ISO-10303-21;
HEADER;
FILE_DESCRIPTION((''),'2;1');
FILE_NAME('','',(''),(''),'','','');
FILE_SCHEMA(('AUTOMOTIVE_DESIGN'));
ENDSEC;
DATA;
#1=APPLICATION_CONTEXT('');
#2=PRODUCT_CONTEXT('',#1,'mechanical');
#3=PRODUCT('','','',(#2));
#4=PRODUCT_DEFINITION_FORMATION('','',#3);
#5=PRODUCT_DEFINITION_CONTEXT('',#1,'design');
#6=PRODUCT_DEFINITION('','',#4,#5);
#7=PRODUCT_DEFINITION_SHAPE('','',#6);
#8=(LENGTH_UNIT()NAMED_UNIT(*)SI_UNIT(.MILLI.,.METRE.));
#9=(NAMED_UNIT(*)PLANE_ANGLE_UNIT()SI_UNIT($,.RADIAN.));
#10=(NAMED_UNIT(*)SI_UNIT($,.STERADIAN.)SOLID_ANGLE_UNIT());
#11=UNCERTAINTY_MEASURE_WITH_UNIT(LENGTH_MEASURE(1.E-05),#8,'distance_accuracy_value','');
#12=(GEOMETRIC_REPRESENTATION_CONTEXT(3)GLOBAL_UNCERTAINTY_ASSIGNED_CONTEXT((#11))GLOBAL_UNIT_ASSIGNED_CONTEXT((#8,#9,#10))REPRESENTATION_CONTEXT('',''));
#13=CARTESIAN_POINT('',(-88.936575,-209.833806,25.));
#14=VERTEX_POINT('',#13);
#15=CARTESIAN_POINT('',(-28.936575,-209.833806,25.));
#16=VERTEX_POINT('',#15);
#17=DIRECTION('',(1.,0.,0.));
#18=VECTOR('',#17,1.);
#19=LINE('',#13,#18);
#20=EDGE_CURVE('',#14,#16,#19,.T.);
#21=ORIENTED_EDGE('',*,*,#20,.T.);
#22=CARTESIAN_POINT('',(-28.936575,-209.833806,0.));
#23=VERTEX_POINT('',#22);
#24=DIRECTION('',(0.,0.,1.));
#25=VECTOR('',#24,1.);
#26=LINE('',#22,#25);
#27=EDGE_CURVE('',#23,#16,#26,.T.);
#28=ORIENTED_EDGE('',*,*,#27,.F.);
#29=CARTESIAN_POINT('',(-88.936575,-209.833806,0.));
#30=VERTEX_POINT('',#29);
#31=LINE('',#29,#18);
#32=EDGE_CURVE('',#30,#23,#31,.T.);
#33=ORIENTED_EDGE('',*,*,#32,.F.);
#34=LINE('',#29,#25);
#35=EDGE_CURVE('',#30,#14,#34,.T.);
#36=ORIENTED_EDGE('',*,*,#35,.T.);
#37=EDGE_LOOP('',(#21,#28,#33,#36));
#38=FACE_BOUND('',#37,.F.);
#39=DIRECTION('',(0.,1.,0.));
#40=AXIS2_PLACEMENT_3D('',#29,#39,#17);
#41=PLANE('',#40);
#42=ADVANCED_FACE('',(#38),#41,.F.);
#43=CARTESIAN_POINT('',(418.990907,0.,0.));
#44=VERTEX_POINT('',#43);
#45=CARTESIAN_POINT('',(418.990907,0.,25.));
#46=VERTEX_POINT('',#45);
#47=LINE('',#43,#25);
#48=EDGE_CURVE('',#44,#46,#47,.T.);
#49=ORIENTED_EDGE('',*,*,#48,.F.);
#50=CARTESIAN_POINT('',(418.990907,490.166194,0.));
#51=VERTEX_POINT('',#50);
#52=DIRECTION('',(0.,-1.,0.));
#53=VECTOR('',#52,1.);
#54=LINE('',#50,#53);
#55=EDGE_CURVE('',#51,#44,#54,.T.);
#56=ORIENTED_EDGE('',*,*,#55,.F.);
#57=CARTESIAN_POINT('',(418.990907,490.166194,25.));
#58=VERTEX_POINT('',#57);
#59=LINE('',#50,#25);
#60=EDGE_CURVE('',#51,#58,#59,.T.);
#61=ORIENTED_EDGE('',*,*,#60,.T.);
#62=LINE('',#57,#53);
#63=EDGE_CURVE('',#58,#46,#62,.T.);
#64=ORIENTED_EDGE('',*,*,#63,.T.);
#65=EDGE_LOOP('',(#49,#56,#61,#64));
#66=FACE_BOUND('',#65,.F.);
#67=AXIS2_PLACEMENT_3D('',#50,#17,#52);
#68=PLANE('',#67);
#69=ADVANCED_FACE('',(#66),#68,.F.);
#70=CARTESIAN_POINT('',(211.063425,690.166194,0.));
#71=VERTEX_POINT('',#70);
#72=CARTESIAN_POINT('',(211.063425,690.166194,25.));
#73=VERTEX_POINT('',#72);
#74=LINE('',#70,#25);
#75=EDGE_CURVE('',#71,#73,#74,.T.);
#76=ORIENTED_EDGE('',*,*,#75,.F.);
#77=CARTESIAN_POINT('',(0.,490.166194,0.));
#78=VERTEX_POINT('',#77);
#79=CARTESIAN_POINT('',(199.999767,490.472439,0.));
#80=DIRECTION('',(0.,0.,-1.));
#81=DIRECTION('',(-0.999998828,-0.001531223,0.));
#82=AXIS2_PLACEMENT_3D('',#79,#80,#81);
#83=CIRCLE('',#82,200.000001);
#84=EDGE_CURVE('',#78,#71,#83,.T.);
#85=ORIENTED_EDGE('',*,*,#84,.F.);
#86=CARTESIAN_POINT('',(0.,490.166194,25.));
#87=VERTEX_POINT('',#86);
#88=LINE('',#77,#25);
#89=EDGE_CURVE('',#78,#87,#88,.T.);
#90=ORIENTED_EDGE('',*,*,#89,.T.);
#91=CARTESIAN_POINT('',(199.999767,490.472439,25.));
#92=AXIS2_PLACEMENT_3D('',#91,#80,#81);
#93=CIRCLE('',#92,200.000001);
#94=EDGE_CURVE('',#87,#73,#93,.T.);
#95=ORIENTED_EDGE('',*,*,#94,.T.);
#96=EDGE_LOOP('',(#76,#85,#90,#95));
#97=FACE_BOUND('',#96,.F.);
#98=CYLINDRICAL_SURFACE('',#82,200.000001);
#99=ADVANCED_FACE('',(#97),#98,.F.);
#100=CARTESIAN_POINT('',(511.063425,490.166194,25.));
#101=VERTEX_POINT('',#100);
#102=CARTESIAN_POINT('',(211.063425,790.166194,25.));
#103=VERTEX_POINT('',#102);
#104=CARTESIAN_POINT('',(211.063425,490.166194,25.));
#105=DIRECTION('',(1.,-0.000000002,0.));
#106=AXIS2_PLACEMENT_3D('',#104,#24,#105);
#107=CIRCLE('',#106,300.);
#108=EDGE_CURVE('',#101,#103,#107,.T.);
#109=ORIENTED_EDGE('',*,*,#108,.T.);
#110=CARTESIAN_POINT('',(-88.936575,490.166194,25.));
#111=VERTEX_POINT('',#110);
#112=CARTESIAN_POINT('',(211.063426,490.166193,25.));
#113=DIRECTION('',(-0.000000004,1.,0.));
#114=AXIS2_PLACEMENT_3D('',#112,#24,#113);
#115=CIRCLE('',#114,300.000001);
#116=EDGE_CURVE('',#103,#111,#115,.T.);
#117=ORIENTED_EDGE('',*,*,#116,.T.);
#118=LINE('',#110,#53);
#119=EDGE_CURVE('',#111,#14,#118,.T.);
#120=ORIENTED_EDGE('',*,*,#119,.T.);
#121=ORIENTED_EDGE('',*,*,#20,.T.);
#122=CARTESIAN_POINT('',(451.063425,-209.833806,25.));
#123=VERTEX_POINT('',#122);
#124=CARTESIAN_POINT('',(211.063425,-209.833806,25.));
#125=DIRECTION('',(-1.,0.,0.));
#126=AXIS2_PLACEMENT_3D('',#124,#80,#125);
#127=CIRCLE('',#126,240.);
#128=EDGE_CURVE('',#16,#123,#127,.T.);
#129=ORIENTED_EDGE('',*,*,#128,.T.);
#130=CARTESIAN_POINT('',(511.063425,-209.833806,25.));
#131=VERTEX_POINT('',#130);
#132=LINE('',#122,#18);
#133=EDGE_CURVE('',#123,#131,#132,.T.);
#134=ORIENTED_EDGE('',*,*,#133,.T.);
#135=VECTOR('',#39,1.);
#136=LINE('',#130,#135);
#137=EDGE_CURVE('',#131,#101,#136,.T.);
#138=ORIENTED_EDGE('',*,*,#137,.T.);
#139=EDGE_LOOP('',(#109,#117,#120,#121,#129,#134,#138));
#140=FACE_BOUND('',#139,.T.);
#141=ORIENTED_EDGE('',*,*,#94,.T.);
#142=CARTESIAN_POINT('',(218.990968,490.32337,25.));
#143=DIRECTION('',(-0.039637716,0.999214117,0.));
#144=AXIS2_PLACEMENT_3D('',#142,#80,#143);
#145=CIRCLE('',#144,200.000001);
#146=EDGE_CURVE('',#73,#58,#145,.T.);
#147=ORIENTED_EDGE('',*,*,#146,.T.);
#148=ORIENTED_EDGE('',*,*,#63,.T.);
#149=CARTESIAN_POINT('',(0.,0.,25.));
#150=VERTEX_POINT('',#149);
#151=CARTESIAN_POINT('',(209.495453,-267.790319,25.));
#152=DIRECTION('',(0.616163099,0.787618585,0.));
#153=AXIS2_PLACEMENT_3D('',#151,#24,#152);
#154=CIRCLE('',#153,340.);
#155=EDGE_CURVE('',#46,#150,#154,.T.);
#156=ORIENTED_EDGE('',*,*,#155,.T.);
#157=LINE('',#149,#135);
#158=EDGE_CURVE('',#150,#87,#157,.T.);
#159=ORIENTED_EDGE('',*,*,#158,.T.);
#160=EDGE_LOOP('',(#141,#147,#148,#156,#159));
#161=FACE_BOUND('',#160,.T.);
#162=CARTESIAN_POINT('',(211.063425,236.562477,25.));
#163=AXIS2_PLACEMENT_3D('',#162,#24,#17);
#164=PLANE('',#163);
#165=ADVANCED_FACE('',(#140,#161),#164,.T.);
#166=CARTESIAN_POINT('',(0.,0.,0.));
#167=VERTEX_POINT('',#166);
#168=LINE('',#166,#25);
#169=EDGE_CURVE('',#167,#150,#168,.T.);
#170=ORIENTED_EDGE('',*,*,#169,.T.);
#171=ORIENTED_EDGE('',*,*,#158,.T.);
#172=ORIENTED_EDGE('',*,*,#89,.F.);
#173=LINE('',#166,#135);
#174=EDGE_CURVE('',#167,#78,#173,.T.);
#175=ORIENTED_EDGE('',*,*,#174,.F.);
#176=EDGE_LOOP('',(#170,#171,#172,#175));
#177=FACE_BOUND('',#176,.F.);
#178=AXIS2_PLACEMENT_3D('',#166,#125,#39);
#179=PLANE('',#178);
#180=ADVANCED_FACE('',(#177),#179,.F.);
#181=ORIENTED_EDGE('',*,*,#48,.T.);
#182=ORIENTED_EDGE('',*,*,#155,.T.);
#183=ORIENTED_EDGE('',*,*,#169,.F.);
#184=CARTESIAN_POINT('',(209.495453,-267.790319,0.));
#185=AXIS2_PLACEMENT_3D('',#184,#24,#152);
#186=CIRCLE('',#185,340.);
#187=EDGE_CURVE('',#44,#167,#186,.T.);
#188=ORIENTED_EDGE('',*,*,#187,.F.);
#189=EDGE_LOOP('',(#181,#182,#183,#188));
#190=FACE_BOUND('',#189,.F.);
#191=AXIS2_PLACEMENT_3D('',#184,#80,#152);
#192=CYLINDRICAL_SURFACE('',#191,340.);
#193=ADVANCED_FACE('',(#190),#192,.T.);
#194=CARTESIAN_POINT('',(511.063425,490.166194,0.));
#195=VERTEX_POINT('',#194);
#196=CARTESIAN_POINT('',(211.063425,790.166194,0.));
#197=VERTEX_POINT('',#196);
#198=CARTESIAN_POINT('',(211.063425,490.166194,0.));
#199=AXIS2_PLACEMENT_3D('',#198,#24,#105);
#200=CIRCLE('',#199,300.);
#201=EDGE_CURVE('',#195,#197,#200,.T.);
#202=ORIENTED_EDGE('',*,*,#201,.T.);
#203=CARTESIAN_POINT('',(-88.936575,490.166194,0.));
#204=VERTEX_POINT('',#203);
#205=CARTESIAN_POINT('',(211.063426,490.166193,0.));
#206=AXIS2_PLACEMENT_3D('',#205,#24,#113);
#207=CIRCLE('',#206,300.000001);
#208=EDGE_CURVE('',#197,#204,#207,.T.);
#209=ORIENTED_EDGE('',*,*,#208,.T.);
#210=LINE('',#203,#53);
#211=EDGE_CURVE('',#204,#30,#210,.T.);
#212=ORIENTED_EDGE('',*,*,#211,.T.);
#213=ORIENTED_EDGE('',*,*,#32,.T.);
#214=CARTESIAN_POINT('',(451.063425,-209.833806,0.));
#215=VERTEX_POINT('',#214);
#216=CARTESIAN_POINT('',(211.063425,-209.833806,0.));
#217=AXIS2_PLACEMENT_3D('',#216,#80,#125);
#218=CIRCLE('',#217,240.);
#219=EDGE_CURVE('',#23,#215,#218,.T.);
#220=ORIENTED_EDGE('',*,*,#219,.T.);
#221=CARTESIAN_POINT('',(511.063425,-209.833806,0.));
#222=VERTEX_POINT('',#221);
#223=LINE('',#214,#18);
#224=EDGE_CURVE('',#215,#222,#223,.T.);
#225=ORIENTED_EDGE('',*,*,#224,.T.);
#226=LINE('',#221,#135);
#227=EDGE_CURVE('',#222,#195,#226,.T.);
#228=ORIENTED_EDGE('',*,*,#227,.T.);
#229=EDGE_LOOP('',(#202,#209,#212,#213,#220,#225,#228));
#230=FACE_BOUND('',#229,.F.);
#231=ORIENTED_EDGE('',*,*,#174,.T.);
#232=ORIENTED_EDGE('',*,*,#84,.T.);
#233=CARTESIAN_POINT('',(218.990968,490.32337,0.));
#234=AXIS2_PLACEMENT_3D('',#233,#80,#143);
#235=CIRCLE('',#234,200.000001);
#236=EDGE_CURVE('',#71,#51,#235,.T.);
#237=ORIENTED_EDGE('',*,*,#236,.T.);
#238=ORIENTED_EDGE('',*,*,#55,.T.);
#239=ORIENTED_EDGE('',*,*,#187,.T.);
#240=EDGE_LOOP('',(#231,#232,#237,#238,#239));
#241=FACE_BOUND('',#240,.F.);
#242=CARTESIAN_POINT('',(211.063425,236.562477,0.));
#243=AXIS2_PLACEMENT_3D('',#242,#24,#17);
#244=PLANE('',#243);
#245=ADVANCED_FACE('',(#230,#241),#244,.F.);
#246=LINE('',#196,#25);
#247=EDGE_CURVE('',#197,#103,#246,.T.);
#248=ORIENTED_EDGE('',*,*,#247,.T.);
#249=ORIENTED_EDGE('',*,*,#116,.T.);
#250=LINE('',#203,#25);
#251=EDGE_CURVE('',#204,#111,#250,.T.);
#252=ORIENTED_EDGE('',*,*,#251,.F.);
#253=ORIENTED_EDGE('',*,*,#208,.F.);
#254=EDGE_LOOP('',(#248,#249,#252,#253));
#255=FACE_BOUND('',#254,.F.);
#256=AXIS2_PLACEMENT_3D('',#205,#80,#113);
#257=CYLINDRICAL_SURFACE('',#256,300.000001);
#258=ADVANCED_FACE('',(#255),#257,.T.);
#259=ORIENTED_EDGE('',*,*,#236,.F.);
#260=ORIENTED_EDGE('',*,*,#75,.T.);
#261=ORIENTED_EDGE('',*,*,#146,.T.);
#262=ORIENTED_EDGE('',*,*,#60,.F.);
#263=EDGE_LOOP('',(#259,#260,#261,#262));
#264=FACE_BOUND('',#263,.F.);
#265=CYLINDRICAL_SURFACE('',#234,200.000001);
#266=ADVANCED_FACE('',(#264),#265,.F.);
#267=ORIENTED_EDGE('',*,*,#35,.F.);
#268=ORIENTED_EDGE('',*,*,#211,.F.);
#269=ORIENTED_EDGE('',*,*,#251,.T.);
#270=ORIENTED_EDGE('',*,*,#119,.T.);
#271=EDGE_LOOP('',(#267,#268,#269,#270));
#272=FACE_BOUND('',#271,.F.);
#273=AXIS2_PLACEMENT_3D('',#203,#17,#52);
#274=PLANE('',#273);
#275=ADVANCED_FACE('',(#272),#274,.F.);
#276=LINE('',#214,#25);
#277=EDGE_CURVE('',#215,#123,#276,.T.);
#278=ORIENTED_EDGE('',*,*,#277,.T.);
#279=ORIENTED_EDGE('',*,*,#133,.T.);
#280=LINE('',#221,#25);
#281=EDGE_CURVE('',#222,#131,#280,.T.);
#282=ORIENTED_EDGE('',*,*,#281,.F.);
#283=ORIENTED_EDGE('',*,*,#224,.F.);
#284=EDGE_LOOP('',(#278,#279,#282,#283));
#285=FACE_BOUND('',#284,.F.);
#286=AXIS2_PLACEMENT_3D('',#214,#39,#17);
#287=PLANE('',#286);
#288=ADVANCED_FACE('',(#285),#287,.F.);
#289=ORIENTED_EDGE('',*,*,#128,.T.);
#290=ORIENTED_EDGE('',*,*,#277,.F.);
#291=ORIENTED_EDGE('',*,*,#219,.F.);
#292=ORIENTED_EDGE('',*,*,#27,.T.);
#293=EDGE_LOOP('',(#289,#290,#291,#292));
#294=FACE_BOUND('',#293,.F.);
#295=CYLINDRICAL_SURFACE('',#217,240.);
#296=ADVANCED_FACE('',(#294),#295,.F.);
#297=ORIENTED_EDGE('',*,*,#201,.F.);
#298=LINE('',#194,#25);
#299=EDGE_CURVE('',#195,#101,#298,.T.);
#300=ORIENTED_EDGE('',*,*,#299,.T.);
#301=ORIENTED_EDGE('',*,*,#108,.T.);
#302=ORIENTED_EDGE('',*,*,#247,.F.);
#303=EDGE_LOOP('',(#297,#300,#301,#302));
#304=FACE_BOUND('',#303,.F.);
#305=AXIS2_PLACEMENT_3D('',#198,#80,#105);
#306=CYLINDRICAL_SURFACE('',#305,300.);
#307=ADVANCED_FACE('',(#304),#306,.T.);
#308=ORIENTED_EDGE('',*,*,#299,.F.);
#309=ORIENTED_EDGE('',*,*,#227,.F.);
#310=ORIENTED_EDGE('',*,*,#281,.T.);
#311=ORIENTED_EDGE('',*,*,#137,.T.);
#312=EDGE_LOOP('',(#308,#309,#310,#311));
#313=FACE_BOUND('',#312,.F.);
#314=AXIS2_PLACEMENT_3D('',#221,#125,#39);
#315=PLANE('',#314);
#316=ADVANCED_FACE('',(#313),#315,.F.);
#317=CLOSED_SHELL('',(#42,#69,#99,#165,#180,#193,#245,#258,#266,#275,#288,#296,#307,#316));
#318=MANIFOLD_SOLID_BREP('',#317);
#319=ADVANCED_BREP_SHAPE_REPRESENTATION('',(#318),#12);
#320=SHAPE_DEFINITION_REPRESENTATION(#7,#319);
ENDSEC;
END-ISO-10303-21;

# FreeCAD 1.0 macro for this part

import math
import FreeCAD as App
import Part
import Sketcher

doc = App.newDocument("Part")
params = doc.addObject("Spreadsheet::Sheet", "Params")
for row, (alias, value) in enumerate([
    ("sketch1_radius", "240 mm"),
    ("sketch1_radius2", "300 mm"),
    ("sketch1_radius3", "200.000001 mm"),
    ("sketch1_radius4", "340 mm"),
    ("sketch1_height", "700 mm"),
    ("pad1_length", "25 mm"),
], start=1):
    params.set(f"A{row}", alias)
    params.set(f"B{row}", "=" + value)
    params.setAlias(f"B{row}", alias)

body = doc.addObject("PartDesign::Body", "Body")

# Sketch on XY plane
sketch1 = body.newObject("Sketcher::SketchObject", "Sketch")
sketch1.AttachmentSupport = (doc.getObject("XY_Plane"), [""])
sketch1.MapMode = "FlatFace"
sketch1.addGeometry(Part.LineSegment(App.Vector(-88.936575, 490.166194, 0), App.Vector(-88.936575, -209.833806, 0)), False)
sketch1.addGeometry(Part.LineSegment(App.Vector(-88.936575, -209.833806, 0), App.Vector(-28.936575, -209.833806, 0)), False)
sketch1.addGeometry(Part.ArcOfCircle(Part.Circle(App.Vector(211.063425, -209.833806, 0), App.Vector(0, 0, 1), 240), math.radians(0), math.radians(180)), False)
sketch1.addGeometry(Part.LineSegment(App.Vector(451.063425, -209.833806, 0), App.Vector(511.063425, -209.833806, 0)), False)
sketch1.addGeometry(Part.LineSegment(App.Vector(511.063425, -209.833806, 0), App.Vector(511.063425, 490.166194, 0)), False)
sketch1.addGeometry(Part.ArcOfCircle(Part.Circle(App.Vector(211.063425, 490.166194, 0), App.Vector(0, 0, 1), 300), math.radians(0), math.radians(90)), False)
sketch1.addGeometry(Part.ArcOfCircle(Part.Circle(App.Vector(211.063426, 490.166193, 0), App.Vector(0, 0, 1), 300.000001), math.radians(90), math.radians(180)), False)
sketch1.addGeometry(Part.LineSegment(App.Vector(0, 0, 0), App.Vector(0, 490.166194, 0)), False)
sketch1.addGeometry(Part.ArcOfCircle(Part.Circle(App.Vector(199.999767, 490.472439, 0), App.Vector(0, 0, 1), 200.000001), math.radians(86.828877), math.radians(180.087733)), False)
sketch1.addGeometry(Part.ArcOfCircle(Part.Circle(App.Vector(218.990968, 490.32337, 0), App.Vector(0, 0, 1), 200.000001), math.radians(-0.045028), math.radians(92.271669)), False)
sketch1.addGeometry(Part.LineSegment(App.Vector(418.990907, 490.166194, 0), App.Vector(418.990907, 0, 0)), False)
sketch1.addGeometry(Part.ArcOfCircle(Part.Circle(App.Vector(209.495453, -267.790319, 0), App.Vector(0, 0, 1), 340), math.radians(51.963518), math.radians(128.036482)), False)
sketch1.addConstraint(Sketcher.Constraint("Coincident", 0, 2, 1, 1))
sketch1.addConstraint(Sketcher.Constraint("Coincident", 1, 2, 2, 2))
sketch1.addConstraint(Sketcher.Constraint("Coincident", 2, 1, 3, 1))
sketch1.addConstraint(Sketcher.Constraint("Coincident", 3, 2, 4, 1))
sketch1.addConstraint(Sketcher.Constraint("Tangent", 4, 2, 5, 1))
sketch1.addConstraint(Sketcher.Constraint("Tangent", 5, 2, 6, 1))
sketch1.addConstraint(Sketcher.Constraint("Tangent", 6, 2, 0, 1))
sketch1.addConstraint(Sketcher.Constraint("Coincident", 7, 2, 8, 2))
sketch1.addConstraint(Sketcher.Constraint("Coincident", 8, 1, 9, 2))
sketch1.addConstraint(Sketcher.Constraint("Coincident", 9, 1, 10, 1))
sketch1.addConstraint(Sketcher.Constraint("Coincident", 10, 2, 11, 1))
sketch1.addConstraint(Sketcher.Constraint("Coincident", 11, 2, 7, 1))
sketch1.addConstraint(Sketcher.Constraint("Vertical", 0))
sketch1.addConstraint(Sketcher.Constraint("Horizontal", 1))
sketch1.addConstraint(Sketcher.Constraint("Horizontal", 3))
sketch1.addConstraint(Sketcher.Constraint("Vertical", 4))
sketch1.addConstraint(Sketcher.Constraint("Vertical", 7))
sketch1.addConstraint(Sketcher.Constraint("Vertical", 10))
sketch1.addConstraint(Sketcher.Constraint("Coincident", 11, 2, -1, 1))
sketch1.addConstraint(Sketcher.Constraint("Equal", 5, 6))
sketch1.addConstraint(Sketcher.Constraint("Equal", 8, 9))
sketch1.addConstraint(Sketcher.Constraint("PointOnObject", 10, 2, -1))
sketch1.addConstraint(Sketcher.Constraint("Horizontal", 2, 3, 0, 2))
sketch1.addConstraint(Sketcher.Constraint("Horizontal", 1, 2, 2, 1))
sketch1.addConstraint(Sketcher.Constraint("Horizontal", 6, 2, 7, 2))
sketch1.addConstraint(Sketcher.Constraint("Horizontal", 7, 2, 9, 1))
sketch1.addConstraint(Sketcher.Constraint("Vertical", 2, 3, 5, 3))
sketch1.addConstraint(Sketcher.Constraint("Vertical", 6, 3, 5, 2))
sketch1.addConstraint(Sketcher.Constraint("Vertical", 5, 2, 8, 1))
sketch1.addConstraint(Sketcher.Constraint("Radius", 2, 240.0))
sketch1.addConstraint(Sketcher.Constraint("Radius", 5, 300.0))
sketch1.addConstraint(Sketcher.Constraint("Radius", 8, 200.000001))
sketch1.addConstraint(Sketcher.Constraint("Radius", 11, 340.0))
sketch1.addConstraint(Sketcher.Constraint("DistanceY", 0, 2, 0, 1, 700.0))
sketch1.addConstraint(Sketcher.Constraint("DistanceY", 8, 1, 5, 2, 100.0))
sketch1.addConstraint(Sketcher.Constraint("DistanceX", 8, 3, 9, 3, 18.991201))
sketch1.addConstraint(Sketcher.Constraint("DistanceY", 7, 1, 7, 2, 490.166194))
sketch1.addConstraint(Sketcher.Constraint("DistanceY", -1, 1, 8, 3, 490.472439))
sketch1.setExpression("Constraints[29]", "Params.sketch1_radius")
sketch1.setExpression("Constraints[30]", "Params.sketch1_radius2")
sketch1.setExpression("Constraints[31]", "Params.sketch1_radius3")
sketch1.setExpression("Constraints[32]", "Params.sketch1_radius4")
sketch1.setExpression("Constraints[33]", "Params.sketch1_height")
pad1 = body.newObject("PartDesign::Pad", "Pad")
pad1.Profile = sketch1
pad1.setExpression("Length", "Params.pad1_length")

doc.recompute()
